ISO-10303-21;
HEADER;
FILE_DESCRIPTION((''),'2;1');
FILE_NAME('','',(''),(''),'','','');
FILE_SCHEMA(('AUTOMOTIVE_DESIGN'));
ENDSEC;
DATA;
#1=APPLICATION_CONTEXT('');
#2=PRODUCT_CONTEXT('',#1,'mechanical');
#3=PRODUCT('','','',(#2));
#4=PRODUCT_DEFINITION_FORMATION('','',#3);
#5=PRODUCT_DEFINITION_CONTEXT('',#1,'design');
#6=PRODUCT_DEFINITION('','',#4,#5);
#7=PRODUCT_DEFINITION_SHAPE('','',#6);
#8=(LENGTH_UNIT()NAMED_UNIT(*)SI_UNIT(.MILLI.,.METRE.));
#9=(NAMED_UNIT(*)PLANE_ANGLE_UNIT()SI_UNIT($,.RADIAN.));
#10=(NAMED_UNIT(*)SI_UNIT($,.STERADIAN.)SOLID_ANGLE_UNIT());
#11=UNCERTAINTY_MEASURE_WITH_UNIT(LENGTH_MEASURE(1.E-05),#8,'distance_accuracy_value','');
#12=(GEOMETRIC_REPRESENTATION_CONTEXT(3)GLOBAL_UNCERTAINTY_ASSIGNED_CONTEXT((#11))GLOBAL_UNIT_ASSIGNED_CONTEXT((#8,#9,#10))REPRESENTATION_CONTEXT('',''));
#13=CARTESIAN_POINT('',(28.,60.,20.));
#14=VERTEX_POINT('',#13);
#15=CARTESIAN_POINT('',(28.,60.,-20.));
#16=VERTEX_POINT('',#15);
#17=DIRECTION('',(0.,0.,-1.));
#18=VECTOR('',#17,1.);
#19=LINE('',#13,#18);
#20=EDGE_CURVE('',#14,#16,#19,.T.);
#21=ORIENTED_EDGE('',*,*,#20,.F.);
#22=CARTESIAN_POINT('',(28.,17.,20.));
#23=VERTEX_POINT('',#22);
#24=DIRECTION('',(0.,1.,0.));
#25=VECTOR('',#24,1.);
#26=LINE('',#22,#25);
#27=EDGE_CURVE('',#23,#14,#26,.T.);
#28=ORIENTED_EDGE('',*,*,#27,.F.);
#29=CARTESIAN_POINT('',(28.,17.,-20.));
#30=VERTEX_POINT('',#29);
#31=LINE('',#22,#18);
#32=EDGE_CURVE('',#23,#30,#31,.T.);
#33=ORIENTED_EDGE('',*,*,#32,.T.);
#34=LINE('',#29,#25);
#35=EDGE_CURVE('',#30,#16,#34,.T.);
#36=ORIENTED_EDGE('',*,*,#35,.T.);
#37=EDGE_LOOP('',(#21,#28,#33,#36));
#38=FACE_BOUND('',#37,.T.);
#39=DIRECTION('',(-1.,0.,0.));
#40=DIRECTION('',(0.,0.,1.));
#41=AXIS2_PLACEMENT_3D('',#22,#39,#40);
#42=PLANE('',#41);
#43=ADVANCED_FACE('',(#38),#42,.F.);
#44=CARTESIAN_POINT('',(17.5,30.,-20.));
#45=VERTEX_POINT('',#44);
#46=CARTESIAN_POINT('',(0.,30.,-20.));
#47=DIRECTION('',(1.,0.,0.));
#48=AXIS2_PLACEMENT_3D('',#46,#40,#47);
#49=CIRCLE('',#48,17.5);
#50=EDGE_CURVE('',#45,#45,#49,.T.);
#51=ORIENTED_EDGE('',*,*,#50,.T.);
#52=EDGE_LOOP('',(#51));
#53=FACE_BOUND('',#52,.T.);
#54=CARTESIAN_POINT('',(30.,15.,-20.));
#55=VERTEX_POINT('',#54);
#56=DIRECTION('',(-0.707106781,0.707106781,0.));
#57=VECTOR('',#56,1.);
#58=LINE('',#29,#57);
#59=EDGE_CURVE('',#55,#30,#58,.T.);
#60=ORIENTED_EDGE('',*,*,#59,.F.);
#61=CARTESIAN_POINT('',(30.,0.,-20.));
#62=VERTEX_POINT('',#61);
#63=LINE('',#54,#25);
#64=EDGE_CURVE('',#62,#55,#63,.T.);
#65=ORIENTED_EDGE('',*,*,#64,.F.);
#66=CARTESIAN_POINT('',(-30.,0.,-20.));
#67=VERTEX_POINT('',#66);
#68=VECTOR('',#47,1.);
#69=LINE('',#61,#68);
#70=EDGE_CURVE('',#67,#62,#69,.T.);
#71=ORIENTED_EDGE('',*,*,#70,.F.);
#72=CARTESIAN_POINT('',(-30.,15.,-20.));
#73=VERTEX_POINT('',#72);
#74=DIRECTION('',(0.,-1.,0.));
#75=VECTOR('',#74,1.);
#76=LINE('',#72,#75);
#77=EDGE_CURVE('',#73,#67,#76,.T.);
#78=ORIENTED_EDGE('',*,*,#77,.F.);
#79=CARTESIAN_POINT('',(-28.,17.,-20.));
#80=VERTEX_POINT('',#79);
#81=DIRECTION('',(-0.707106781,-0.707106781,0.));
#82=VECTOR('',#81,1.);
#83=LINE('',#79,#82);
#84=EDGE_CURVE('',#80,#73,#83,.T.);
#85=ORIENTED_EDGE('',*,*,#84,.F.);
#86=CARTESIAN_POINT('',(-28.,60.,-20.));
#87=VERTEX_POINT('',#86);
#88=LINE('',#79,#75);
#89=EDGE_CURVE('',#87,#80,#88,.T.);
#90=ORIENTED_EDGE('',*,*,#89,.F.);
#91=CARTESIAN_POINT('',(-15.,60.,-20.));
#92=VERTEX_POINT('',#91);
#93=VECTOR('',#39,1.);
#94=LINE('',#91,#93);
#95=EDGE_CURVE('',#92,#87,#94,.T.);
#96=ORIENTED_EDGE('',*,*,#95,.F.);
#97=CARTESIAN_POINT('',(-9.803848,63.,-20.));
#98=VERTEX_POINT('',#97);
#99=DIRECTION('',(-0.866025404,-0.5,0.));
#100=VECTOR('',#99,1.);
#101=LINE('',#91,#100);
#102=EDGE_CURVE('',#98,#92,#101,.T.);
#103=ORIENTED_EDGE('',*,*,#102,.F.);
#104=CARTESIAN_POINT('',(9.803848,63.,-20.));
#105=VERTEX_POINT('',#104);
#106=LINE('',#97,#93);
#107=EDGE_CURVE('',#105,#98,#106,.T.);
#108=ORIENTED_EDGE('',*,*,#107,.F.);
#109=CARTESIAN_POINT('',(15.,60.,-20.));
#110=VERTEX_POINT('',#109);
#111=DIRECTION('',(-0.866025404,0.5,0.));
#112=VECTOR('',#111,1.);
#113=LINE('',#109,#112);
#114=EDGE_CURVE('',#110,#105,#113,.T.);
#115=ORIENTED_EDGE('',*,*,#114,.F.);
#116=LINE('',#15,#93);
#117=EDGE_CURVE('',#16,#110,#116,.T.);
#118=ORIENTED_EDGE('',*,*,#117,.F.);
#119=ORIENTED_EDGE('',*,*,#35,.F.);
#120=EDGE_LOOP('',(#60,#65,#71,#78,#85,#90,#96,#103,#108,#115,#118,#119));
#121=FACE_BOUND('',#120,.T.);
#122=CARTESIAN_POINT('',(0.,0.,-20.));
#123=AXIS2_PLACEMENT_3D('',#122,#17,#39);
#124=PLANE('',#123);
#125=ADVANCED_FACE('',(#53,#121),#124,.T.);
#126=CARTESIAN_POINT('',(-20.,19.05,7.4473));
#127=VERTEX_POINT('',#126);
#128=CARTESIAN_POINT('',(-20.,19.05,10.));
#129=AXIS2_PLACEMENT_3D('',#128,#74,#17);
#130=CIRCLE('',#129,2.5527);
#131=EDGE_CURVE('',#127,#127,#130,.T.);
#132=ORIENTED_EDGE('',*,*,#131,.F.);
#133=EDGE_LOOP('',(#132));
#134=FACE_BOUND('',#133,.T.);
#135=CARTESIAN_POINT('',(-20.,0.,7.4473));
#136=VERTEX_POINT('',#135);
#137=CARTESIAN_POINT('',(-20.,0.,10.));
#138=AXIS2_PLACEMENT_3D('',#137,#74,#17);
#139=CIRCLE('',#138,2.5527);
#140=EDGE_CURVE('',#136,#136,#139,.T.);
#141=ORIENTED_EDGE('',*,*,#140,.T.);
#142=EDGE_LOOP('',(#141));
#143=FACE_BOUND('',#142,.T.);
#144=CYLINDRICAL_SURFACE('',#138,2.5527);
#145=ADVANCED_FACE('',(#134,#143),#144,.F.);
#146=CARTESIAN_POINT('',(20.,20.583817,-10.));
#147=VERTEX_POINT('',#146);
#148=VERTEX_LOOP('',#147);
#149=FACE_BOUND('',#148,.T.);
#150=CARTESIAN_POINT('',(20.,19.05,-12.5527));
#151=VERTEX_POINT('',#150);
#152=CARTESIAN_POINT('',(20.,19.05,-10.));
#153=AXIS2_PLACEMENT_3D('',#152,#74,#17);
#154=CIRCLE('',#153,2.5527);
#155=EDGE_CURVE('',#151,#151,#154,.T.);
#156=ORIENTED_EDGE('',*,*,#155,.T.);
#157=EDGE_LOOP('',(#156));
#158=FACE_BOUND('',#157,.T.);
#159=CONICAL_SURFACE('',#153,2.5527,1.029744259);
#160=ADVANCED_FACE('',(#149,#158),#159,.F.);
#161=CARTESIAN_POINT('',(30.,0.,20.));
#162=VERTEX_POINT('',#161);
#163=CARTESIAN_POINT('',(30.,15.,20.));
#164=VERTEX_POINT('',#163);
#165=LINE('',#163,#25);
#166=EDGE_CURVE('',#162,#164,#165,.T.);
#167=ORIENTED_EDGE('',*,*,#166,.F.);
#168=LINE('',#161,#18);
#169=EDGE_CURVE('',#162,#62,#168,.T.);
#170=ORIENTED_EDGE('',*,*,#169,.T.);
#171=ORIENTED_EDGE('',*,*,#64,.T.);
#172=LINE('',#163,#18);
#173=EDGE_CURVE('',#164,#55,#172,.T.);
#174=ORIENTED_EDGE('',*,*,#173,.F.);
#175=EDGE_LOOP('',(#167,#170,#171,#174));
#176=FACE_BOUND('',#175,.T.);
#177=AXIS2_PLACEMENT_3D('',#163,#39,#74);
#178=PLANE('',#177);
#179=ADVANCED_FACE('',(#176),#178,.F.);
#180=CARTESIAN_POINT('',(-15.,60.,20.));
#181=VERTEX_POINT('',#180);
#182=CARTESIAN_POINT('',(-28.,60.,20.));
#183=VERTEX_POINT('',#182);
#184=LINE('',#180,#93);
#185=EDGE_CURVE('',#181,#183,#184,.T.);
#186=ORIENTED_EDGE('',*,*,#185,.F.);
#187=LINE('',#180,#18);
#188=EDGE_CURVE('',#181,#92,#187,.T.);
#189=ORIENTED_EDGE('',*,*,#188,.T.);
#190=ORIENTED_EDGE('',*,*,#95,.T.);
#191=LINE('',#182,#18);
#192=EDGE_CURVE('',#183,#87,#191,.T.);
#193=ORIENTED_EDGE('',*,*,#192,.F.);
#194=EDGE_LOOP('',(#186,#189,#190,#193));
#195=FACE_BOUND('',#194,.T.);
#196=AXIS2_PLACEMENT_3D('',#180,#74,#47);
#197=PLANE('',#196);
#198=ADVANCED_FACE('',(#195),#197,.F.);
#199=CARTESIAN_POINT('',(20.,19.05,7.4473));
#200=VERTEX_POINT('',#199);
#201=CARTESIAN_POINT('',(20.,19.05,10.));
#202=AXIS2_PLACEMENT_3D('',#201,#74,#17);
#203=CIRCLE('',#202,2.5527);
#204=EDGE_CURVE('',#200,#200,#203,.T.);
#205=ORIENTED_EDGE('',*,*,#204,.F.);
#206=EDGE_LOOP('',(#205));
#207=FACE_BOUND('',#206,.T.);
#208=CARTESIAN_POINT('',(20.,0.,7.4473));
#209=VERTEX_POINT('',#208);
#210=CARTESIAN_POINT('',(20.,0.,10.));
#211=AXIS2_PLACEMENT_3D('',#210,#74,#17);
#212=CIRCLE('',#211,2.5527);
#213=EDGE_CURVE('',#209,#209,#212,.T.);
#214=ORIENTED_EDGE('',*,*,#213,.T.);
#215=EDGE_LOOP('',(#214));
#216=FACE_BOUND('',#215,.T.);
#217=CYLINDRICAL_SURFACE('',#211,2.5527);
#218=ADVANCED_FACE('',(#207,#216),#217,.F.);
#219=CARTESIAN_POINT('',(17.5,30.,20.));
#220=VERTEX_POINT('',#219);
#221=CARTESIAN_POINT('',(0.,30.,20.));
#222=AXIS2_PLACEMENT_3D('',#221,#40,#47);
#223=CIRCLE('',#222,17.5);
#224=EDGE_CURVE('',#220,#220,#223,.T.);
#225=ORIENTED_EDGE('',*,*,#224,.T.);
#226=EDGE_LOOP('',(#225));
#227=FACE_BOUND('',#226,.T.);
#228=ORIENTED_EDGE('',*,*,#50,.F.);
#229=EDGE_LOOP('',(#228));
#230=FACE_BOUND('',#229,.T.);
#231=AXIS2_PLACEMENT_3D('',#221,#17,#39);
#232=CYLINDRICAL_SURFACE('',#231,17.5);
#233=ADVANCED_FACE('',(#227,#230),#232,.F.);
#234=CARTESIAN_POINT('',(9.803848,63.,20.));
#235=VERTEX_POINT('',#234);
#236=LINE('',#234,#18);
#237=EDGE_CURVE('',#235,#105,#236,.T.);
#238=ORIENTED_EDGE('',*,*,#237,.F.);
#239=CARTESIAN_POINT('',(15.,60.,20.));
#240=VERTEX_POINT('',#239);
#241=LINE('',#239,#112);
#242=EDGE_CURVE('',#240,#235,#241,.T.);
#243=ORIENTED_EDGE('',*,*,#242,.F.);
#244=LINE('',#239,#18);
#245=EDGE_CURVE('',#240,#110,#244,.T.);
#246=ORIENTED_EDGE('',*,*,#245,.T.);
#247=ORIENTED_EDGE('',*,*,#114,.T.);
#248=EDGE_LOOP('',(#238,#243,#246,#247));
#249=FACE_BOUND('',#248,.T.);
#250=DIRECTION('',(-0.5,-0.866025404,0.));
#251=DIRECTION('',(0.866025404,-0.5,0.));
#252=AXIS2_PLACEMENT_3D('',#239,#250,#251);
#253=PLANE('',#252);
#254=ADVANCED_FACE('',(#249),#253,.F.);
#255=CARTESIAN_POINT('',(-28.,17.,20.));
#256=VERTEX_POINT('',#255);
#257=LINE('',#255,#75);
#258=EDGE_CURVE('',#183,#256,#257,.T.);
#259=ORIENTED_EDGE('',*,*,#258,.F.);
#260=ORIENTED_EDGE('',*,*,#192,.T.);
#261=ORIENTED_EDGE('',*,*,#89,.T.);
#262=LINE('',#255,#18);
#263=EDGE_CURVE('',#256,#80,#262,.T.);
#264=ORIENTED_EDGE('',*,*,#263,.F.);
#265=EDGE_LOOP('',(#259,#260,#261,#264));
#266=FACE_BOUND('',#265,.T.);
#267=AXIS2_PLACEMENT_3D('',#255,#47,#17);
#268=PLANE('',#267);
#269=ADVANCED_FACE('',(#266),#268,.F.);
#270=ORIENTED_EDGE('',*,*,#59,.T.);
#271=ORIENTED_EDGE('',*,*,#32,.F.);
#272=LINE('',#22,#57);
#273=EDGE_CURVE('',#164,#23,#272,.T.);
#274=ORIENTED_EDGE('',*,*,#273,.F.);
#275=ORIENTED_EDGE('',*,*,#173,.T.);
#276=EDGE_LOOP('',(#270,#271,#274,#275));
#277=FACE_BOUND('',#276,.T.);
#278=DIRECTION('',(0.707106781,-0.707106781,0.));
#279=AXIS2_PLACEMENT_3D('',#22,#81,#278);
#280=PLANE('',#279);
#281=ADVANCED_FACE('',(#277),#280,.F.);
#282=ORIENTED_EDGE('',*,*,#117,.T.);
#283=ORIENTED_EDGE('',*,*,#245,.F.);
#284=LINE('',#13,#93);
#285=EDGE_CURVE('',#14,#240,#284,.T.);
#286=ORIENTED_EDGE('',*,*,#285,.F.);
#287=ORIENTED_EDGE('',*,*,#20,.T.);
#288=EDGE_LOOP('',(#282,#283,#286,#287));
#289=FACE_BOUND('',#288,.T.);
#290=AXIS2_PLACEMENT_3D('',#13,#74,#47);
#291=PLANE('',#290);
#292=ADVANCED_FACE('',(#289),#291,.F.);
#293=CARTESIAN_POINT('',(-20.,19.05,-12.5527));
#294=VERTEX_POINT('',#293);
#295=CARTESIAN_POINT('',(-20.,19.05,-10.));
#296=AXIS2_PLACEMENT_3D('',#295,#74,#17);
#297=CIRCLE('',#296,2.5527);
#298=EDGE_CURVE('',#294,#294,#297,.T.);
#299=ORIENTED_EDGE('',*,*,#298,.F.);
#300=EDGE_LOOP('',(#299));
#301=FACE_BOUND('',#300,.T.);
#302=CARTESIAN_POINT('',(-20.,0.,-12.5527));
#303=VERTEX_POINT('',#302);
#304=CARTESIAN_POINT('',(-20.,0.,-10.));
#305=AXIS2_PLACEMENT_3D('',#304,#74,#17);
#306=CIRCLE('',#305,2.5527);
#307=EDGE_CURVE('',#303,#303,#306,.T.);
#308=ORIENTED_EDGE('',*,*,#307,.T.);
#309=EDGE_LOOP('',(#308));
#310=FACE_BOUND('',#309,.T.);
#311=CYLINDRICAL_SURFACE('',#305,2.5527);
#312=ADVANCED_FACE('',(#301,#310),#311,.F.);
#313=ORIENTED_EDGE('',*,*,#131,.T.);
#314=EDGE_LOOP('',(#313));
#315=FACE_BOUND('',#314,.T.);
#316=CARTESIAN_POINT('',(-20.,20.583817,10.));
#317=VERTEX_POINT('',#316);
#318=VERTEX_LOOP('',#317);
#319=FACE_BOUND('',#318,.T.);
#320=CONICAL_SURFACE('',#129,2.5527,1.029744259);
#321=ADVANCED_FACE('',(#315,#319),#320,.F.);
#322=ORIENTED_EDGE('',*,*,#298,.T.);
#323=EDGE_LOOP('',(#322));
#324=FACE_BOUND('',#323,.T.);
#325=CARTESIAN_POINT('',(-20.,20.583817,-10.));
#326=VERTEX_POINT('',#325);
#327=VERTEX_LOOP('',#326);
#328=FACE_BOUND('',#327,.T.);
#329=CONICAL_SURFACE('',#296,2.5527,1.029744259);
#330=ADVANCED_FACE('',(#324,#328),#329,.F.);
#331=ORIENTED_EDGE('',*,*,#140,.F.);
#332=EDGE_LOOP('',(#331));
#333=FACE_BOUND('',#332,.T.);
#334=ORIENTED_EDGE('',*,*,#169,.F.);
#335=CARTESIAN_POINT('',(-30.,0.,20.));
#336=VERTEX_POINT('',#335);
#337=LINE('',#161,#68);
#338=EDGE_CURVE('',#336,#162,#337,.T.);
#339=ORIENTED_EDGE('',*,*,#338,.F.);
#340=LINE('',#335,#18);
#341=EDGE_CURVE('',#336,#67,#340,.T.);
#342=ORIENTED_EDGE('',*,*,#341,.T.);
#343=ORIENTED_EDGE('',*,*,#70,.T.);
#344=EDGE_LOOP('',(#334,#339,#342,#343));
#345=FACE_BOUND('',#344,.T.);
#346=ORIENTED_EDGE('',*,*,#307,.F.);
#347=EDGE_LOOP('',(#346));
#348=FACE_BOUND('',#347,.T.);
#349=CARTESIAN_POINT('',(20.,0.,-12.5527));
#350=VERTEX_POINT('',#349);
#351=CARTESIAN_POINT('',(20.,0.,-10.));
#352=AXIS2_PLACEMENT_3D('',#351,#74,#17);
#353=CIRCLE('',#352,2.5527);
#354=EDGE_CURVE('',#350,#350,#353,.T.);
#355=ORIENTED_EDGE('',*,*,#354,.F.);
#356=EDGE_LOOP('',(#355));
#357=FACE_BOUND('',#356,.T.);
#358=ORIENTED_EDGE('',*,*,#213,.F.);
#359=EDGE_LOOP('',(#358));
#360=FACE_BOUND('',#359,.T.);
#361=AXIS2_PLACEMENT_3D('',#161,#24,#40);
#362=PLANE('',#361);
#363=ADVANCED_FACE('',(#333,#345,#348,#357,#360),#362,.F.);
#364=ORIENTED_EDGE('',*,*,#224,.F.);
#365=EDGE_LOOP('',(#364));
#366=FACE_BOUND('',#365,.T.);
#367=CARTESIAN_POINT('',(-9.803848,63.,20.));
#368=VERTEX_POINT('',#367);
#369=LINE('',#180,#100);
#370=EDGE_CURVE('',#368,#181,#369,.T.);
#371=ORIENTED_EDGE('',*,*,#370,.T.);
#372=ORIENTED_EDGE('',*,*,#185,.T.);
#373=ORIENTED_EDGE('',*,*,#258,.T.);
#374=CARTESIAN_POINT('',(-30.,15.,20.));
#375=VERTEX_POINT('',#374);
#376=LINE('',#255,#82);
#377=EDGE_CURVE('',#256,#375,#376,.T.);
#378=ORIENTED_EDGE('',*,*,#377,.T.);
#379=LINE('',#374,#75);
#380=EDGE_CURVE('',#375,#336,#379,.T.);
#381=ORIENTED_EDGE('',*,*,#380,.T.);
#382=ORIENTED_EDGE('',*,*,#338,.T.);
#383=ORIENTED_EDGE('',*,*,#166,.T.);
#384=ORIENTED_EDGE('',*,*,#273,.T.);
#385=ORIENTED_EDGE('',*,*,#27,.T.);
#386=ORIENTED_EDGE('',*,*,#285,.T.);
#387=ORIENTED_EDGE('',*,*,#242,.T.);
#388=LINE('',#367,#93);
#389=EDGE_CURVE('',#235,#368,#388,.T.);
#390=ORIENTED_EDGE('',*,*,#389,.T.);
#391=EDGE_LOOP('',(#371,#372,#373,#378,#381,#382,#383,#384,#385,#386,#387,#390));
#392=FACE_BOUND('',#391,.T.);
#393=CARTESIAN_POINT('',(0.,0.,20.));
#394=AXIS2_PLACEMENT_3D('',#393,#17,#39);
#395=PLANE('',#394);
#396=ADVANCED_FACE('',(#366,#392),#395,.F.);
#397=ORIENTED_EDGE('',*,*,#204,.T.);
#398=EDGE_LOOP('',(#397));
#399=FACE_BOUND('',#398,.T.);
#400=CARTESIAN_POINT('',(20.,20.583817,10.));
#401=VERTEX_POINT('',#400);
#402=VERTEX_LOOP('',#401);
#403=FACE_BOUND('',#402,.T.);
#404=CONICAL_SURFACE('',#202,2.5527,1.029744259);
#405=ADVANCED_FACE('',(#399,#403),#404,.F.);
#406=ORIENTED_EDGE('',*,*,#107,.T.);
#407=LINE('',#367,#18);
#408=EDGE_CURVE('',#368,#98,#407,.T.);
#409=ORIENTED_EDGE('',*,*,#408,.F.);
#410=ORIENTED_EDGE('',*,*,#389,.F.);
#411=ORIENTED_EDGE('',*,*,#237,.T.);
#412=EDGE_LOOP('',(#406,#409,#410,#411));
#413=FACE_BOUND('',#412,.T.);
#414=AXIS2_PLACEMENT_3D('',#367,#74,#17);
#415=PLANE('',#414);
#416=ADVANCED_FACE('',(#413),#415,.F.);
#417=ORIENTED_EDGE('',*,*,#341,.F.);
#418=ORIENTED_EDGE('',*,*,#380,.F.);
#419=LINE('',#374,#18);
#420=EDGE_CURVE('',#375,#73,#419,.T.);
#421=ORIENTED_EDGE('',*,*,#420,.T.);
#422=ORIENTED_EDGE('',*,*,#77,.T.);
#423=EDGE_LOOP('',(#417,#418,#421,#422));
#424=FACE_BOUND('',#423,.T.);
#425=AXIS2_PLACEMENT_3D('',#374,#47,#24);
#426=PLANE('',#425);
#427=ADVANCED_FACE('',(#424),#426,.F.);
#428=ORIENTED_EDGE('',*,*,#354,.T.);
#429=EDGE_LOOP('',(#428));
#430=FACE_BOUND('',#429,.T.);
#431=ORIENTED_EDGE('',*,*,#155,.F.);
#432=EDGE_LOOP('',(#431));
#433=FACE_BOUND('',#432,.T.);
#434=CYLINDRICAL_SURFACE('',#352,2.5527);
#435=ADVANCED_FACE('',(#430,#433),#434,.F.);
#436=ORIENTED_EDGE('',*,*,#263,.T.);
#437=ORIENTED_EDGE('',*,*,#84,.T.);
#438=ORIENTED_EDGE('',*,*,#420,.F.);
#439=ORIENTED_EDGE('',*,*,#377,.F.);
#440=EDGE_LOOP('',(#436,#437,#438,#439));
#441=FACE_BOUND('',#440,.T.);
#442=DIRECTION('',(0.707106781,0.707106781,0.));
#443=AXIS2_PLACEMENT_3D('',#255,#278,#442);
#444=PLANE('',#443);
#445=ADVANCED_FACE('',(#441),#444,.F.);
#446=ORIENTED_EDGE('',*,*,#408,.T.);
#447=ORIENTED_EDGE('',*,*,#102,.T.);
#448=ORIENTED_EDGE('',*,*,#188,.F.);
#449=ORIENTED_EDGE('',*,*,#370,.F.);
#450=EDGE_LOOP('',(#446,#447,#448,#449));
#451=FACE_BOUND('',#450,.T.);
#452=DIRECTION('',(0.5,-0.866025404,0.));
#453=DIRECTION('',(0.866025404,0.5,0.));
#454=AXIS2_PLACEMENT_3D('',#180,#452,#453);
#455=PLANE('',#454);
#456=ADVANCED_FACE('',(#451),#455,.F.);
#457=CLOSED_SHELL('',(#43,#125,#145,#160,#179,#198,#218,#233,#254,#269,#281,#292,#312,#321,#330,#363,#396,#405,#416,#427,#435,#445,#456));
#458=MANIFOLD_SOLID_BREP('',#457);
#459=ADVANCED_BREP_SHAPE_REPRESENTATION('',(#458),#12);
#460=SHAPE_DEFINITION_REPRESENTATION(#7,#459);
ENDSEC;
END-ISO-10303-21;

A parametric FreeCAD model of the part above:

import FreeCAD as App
import Part
import Sketcher
from FreeCAD import Vector
Q = App.Units.Quantity


def add_polygon(sketch, points):
    """Adds a closed chain of lines whose ends are joined by coincident constraints."""
    first, n = sketch.GeometryCount, len(points)
    for a, b in zip(points, points[1:] + points[:1]):
        sketch.addGeometry(Part.LineSegment(App.Vector(*a, 0), App.Vector(*b, 0)), False)
    for i in range(n):
        sketch.addConstraint(Sketcher.Constraint("Coincident", first + i, 2, first + (i + 1) % n, 1))

doc = App.newDocument("Part")
body = doc.addObject("PartDesign::Body", "Body")

# Sketch on XY plane
sketch1 = doc.addObject("Sketcher::SketchObject", "Sketch")
body.addObject(sketch1)
sketch1.AttachmentSupport = (doc.XY_Plane, [""])
sketch1.MapMode = "FlatFace"
add_polygon(sketch1, [(28, 60), (15, 60), (9.803848, 63), (-9.803848, 63), (-15, 60), (-28, 60), (-28, 17), (-30, 15), (-30, 0), (30, 0), (30, 15), (28, 17)])  # lines 0-11
sketch1.addGeometry(Part.Circle(Vector(0, 30, 0), Vector(0, 0, 1), 17.5), False)  # 12
sketch1.addConstraint(Sketcher.Constraint("Horizontal", 0))
sketch1.addConstraint(Sketcher.Constraint("Horizontal", 2))
sketch1.addConstraint(Sketcher.Constraint("Horizontal", 4))
sketch1.addConstraint(Sketcher.Constraint("Vertical", 5))
sketch1.addConstraint(Sketcher.Constraint("Vertical", 7))
sketch1.addConstraint(Sketcher.Constraint("Horizontal", 8))
sketch1.addConstraint(Sketcher.Constraint("Vertical", 9))
sketch1.addConstraint(Sketcher.Constraint("Vertical", 11))
sketch1.addConstraint(Sketcher.Constraint("Symmetric", 7, 2, 8, 2, -1, 1))
sketch1.addConstraint(Sketcher.Constraint("Symmetric", 0, 2, 3, 2, -2))
sketch1.addConstraint(Sketcher.Constraint("Symmetric", 5, 2, 10, 2, -2))
sketch1.addConstraint(Sketcher.Constraint("PointOnObject", 12, 3, -2))
sketch1.addConstraint(Sketcher.Constraint("Perpendicular", 6, 10))
sketch1.addConstraint(Sketcher.Constraint("Horizontal", 6, 2, 9, 2))
sketch1.addConstraint(Sketcher.Constraint("Equal", 1, 3))
sketch1.addConstraint(Sketcher.Constraint("Diameter", 12, 35.0))
sketch1.addConstraint(Sketcher.Constraint("DistanceX", 0, 2, 0, 1, 13.0))
sketch1.addConstraint(Sketcher.Constraint("DistanceX", 8, 1, 8, 2, 60.0))
sketch1.addConstraint(Sketcher.Constraint("DistanceY", 5, 2, 5, 1, 43.0))
sketch1.addConstraint(Sketcher.Constraint("DistanceY", 7, 2, 7, 1, 15.0))
sketch1.addConstraint(Sketcher.Constraint("Angle", 1, Q("150 deg")))
sketch1.addConstraint(Sketcher.Constraint("Distance", 1, 6.0))
sketch1.addConstraint(Sketcher.Constraint("DistanceY", -1, 1, 12, 3, 30.0))
sketch1.addConstraint(Sketcher.Constraint("DistanceX", -1, 1, 0, 2, 15.0))
pad1 = doc.addObject("PartDesign::Pad", "Pad")
body.addObject(pad1)
pad1.Profile = sketch1
pad1.Length = 40
pad1.Midplane = True

# Sketch on XZ plane
sketch2 = doc.addObject("Sketcher::SketchObject", "Sketch001")
body.addObject(sketch2)
sketch2.AttachmentSupport = (doc.XZ_Plane, [""])
sketch2.MapMode = "FlatFace"
sketch2.addGeometry(Part.Circle(Vector(-20, -10, 0), Vector(0, 0, 1), 2.5527), False)
sketch2.addGeometry(Part.Circle(Vector(-20, 10, 0), Vector(0, 0, 1), 2.5527), False)
sketch2.addGeometry(Part.Circle(Vector(20, 10, 0), Vector(0, 0, 1), 2.5527), False)
sketch2.addGeometry(Part.Circle(Vector(20, -10, 0), Vector(0, 0, 1), 2.5527), False)
sketch2.addConstraint(Sketcher.Constraint("Equal", 0, 1))
sketch2.addConstraint(Sketcher.Constraint("Equal", 1, 2))
sketch2.addConstraint(Sketcher.Constraint("Equal", 2, 3))
sketch2.addConstraint(Sketcher.Constraint("Symmetric", 0, 3, 2, 3, -1, 1))
sketch2.addConstraint(Sketcher.Constraint("Symmetric", 1, 3, 3, 3, -1, 1))
sketch2.addConstraint(Sketcher.Constraint("Symmetric", 1, 3, 2, 3, -2))
sketch2.addConstraint(Sketcher.Constraint("DistanceX", 0, 3, -1, 1, 20.0))
sketch2.addConstraint(Sketcher.Constraint("DistanceY", 0, 3, -1, 1, 10.0))
sketch2.addConstraint(Sketcher.Constraint("Diameter", 0, 5.1054))
doc.recompute()
hole = doc.addObject("PartDesign::Hole", "Hole")
body.addObject(hole)
hole.Profile = sketch2
hole.ThreadType = "None"
hole.Diameter = 5.1054
hole.DepthType = "Dimension"
hole.Depth = 19.05
hole.DrillPoint = "Angled"
hole.DrillPointAngle = 118

doc.recompute()
